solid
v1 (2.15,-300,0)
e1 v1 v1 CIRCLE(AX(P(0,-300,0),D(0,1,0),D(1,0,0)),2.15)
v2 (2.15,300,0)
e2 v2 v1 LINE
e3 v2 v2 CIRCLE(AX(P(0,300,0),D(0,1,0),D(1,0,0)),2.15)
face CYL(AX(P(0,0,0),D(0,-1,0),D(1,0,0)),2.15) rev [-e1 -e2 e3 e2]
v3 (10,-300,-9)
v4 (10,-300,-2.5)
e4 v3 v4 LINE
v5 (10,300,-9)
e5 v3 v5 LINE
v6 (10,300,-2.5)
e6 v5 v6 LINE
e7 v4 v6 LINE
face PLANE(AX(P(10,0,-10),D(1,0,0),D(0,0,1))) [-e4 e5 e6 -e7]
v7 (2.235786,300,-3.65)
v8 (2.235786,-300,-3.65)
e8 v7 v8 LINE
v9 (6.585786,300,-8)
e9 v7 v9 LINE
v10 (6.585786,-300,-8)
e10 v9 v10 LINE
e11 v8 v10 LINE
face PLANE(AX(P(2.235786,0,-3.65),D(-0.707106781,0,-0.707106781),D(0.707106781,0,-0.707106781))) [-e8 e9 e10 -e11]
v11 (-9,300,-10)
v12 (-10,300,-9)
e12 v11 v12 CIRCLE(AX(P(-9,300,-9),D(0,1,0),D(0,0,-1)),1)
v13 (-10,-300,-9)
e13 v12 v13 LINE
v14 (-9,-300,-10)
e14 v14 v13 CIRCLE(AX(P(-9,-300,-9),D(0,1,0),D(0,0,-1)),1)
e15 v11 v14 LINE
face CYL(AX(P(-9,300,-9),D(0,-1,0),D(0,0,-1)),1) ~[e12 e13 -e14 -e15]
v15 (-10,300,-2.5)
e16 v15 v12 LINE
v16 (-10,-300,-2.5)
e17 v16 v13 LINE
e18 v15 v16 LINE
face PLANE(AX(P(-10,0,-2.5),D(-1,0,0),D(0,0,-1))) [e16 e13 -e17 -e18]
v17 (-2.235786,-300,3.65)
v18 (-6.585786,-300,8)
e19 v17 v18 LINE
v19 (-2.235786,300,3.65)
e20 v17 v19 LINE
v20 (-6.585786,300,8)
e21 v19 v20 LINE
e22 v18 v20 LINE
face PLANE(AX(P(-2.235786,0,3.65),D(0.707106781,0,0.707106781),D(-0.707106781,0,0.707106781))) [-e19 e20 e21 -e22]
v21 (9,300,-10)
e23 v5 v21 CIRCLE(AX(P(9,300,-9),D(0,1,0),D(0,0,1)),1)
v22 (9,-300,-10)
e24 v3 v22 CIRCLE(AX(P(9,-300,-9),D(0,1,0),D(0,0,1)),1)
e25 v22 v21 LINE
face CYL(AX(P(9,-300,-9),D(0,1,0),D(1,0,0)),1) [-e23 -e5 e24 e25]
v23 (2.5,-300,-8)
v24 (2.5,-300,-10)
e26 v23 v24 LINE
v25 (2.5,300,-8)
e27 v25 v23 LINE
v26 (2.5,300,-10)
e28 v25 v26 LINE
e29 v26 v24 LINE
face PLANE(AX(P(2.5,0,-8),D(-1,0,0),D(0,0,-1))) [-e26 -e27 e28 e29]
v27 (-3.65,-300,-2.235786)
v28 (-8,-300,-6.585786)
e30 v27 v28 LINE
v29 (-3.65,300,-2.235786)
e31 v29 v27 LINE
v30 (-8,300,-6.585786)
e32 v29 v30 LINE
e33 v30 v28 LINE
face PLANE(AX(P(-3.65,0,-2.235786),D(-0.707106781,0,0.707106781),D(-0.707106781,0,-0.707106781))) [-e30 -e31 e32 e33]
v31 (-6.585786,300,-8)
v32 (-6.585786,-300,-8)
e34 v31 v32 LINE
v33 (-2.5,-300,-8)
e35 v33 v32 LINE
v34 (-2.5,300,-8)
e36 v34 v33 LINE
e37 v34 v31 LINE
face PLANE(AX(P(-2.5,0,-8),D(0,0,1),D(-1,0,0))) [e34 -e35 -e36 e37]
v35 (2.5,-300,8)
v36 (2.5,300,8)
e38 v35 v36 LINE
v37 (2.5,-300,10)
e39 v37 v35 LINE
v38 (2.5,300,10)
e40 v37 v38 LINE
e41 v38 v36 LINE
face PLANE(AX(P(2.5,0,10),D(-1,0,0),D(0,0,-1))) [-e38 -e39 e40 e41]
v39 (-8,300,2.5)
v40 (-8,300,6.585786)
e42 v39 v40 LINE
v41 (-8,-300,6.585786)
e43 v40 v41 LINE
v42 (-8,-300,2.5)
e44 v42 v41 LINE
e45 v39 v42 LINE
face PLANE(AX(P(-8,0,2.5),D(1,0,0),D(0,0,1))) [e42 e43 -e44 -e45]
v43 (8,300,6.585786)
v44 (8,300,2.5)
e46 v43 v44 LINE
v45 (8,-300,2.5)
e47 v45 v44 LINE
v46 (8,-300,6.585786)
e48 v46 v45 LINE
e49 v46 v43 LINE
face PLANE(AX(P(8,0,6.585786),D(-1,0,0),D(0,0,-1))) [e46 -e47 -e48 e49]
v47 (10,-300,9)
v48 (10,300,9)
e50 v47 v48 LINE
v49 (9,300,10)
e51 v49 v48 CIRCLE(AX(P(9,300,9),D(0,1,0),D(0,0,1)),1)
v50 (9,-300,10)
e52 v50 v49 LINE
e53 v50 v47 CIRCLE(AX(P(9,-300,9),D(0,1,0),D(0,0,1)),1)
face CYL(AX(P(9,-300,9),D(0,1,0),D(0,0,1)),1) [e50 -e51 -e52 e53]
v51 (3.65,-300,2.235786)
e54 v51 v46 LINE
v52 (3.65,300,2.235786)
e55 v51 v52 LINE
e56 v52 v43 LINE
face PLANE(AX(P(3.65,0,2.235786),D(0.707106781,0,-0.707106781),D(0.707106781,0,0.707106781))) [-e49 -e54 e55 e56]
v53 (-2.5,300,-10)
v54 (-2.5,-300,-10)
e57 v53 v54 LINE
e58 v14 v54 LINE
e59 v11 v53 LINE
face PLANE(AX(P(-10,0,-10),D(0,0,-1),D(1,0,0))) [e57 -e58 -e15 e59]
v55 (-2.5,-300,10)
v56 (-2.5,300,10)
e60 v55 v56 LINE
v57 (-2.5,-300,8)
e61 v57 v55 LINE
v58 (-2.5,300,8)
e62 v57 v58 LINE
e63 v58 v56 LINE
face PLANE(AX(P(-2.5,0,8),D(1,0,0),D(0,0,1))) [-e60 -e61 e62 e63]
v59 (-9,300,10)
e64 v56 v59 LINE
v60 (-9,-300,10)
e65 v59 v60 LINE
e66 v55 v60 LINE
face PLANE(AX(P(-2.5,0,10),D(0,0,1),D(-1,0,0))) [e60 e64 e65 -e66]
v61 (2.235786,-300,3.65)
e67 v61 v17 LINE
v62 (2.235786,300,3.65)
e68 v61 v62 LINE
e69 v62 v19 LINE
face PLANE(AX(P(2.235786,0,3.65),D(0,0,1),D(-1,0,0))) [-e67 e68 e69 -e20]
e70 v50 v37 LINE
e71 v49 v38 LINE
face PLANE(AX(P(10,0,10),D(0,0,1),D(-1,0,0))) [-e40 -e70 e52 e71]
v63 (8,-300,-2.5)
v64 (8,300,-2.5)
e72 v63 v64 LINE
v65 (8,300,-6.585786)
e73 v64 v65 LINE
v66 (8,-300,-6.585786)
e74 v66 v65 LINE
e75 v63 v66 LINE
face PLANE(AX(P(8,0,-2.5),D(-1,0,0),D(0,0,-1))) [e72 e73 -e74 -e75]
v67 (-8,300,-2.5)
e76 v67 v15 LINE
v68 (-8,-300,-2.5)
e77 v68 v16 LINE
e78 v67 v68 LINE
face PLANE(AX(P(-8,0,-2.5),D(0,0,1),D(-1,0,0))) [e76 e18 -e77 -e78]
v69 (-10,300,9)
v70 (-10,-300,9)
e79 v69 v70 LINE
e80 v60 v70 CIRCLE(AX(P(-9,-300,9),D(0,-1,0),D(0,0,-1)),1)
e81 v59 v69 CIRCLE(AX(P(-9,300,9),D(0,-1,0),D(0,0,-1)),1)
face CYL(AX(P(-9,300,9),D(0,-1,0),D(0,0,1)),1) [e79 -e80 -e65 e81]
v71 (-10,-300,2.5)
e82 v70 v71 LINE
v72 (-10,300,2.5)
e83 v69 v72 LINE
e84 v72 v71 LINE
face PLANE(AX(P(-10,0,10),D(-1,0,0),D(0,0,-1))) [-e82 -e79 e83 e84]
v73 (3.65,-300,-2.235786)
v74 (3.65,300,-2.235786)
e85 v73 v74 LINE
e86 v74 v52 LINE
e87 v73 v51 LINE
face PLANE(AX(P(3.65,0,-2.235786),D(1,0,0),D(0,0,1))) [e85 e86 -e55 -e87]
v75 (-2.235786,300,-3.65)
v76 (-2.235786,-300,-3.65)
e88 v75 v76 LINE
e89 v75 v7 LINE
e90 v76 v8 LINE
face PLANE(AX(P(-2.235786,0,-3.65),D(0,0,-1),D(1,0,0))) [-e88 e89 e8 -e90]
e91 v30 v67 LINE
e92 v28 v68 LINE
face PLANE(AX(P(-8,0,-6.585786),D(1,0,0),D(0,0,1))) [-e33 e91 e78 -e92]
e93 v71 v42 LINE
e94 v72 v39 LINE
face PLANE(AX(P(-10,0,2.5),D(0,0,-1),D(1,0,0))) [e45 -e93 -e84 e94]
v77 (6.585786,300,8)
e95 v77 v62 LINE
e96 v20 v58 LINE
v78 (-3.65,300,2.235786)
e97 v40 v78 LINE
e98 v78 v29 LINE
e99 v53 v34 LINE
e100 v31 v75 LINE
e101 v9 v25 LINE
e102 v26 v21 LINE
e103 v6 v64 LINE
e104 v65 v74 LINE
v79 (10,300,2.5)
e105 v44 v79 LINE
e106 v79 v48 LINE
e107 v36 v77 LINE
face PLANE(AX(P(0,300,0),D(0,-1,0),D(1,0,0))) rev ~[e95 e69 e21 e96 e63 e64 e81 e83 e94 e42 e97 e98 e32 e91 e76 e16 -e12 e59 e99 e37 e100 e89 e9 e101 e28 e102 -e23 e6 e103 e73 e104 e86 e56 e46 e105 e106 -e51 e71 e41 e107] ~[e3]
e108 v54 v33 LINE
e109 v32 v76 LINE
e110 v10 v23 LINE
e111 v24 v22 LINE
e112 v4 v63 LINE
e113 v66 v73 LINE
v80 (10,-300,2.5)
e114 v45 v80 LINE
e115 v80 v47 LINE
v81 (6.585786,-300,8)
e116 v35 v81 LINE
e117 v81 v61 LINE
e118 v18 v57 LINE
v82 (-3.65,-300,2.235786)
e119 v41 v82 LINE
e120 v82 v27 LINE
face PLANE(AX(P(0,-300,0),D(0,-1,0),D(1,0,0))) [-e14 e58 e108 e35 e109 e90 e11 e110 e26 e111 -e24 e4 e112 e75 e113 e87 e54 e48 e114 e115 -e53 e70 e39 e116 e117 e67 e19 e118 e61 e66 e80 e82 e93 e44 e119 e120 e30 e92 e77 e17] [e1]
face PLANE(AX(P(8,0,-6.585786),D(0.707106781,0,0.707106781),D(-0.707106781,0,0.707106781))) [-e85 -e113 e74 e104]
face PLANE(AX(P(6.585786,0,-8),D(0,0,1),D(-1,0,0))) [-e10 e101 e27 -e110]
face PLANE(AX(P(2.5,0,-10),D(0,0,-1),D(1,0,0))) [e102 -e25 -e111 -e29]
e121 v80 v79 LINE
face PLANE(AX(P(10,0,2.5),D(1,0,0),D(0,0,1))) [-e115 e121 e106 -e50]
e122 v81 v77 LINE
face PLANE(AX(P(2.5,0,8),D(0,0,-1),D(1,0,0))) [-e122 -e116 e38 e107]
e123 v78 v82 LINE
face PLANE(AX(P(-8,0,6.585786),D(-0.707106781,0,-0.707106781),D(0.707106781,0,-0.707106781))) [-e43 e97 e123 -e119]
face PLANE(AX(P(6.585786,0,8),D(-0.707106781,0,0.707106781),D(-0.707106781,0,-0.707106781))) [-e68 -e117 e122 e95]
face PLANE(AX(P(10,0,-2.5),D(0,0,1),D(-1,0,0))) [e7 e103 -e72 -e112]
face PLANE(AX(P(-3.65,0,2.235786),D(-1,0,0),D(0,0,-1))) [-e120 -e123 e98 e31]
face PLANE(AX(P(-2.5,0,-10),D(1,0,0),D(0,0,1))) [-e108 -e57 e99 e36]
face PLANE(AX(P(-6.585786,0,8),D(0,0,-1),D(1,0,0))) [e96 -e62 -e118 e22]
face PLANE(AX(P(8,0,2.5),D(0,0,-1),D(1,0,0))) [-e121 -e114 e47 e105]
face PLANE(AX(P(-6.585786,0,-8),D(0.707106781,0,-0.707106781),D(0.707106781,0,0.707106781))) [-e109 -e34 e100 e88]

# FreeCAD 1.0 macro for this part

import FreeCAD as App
import Part
import Sketcher
Q = App.Units.Quantity


def edges_at(feature, points):
    """Names of the edges that pass closest to the given points."""
    edges = feature.Shape.Edges
    near = lambda p: min(range(len(edges)), key=lambda i: edges[i].distToShape(Part.Vertex(*p))[0])
    return sorted({f"Edge{near(p) + 1}" for p in points})


def add_polygon(sketch, points):
    """Adds a closed chain of lines whose ends are joined by coincident constraints."""
    first, n = sketch.GeometryCount, len(points)
    for a, b in zip(points, points[1:] + points[:1]):
        sketch.addGeometry(Part.LineSegment(App.Vector(*a, 0), App.Vector(*b, 0)), False)
    for i in range(n):
        sketch.addConstraint(Sketcher.Constraint("Coincident", first + i, 2, first + (i + 1) % n, 1))

doc = App.newDocument("Part")
body = doc.addObject("PartDesign::Body", "Body")

# Sketch on XZ plane
sketch1 = body.newObject("Sketcher::SketchObject", "Sketch")
sketch1.AttachmentSupport = (doc.getObject("XZ_Plane"), [""])
sketch1.MapMode = "FlatFace"
add_polygon(sketch1, [(-2.5, 10), (-10, 10), (-10, 2.5), (-8, 2.5), (-8, 6.6), (-3.6, 2.2), (-3.6, -2.2), (-8, -6.6), (-8, -2.5), (-10, -2.5), (-10, -10), (-2.5, -10), (-2.5, -8), (-6.6, -8), (-2.2, -3.6), (2.2, -3.6), (6.6, -8), (2.5, -8), (2.5, -10), (10, -10), (10, -2.5), (8, -2.5), (8, -6.6), (3.6, -2.2), (3.6, 2.2), (8, 6.6), (8, 2.5), (10, 2.5), (10, 10), (2.5, 10), (2.5, 8), (6.6, 8), (2.2, 3.6), (-2.2, 3.6), (-6.6, 8), (-2.5, 8)])  # lines 0-35
sketch1.addGeometry(Part.Circle(App.Vector(0, 0, 0), App.Vector(0, 0, 1), 2.1), False)  # 36
sketch1.addConstraint([
    Sketcher.Constraint("Horizontal", 0),
    Sketcher.Constraint("Vertical", 1),
    Sketcher.Constraint("Horizontal", 2),
    Sketcher.Constraint("Vertical", 3),
    Sketcher.Constraint("Vertical", 5),
    Sketcher.Constraint("Vertical", 7),
    Sketcher.Constraint("Horizontal", 8),
    Sketcher.Constraint("Vertical", 9),
    Sketcher.Constraint("Horizontal", 10),
    Sketcher.Constraint("Vertical", 11),
    Sketcher.Constraint("Horizontal", 12),
    Sketcher.Constraint("Horizontal", 14),
    Sketcher.Constraint("Horizontal", 16),
    Sketcher.Constraint("Vertical", 17),
    Sketcher.Constraint("Horizontal", 18),
    Sketcher.Constraint("Vertical", 19),
    Sketcher.Constraint("Horizontal", 20),
    Sketcher.Constraint("Vertical", 21),
    Sketcher.Constraint("Vertical", 23),
    Sketcher.Constraint("Vertical", 25),
    Sketcher.Constraint("Horizontal", 26),
    Sketcher.Constraint("Vertical", 27),
    Sketcher.Constraint("Horizontal", 28),
    Sketcher.Constraint("Vertical", 29),
    Sketcher.Constraint("Horizontal", 30),
    Sketcher.Constraint("Horizontal", 32),
    Sketcher.Constraint("Horizontal", 34),
    Sketcher.Constraint("Vertical", 35),
    Sketcher.Constraint("Coincident", 36, 3, -1, 1),
    Sketcher.Constraint("Symmetric", 0, 2, 18, 2, -1, 1),
    Sketcher.Constraint("Symmetric", 2, 2, 20, 2, -1, 1),
    Sketcher.Constraint("Symmetric", 4, 2, 22, 2, -1, 1),
    Sketcher.Constraint("Symmetric", 6, 2, 24, 2, -1, 1),
    Sketcher.Constraint("Symmetric", 8, 2, 26, 2, -1, 1),
    Sketcher.Constraint("Symmetric", 10, 2, 28, 2, -1, 1),
    Sketcher.Constraint("Symmetric", 12, 2, 30, 2, -1, 1),
    Sketcher.Constraint("Symmetric", 13, 2, 31, 2, -1, 1),
    Sketcher.Constraint("Symmetric", 15, 2, 33, 2, -1, 1),
    Sketcher.Constraint("Symmetric", 12, 2, 15, 2, -2),
    Sketcher.Constraint("Symmetric", 10, 2, 17, 2, -2),
    Sketcher.Constraint("Symmetric", 8, 2, 19, 2, -2),
    Sketcher.Constraint("Symmetric", 6, 2, 21, 2, -2),
    Sketcher.Constraint("Perpendicular", 4, 6),
    Sketcher.Constraint("Parallel", 6, 13),
    Sketcher.Constraint("Perpendicular", 13, 15),
    Sketcher.Constraint("Parallel", 15, 22),
    Sketcher.Constraint("Perpendicular", 22, 24),
    Sketcher.Constraint("Perpendicular", 31, 33),
    Sketcher.Constraint("Horizontal", 5, 2, 22, 2),
    Sketcher.Constraint("Vertical", 11, 2, 34, 2),
    Sketcher.Constraint("Equal", 28, 1),
    Sketcher.Constraint("Equal", 34, 3),
    Sketcher.Constraint("Equal", 32, 5),
    Sketcher.Constraint("Equal", 26, 11),
    Sketcher.Constraint("Equal", 6, 13),
    Sketcher.Constraint("Diameter", 36, Q("4.3 mm")),
    Sketcher.Constraint("DistanceX", 2, 1, 2, 2, Q("2 mm")),
    Sketcher.Constraint("DistanceX", 0, 2, 0, 1, Q("7.5 mm")),
    Sketcher.Constraint("DistanceX", 0, 2, -1, 1, Q("10 mm")),
    Sketcher.Constraint("DistanceX", 4, 2, 23, 2, Q("7.3 mm")),
    Sketcher.Constraint("DistanceX", 12, 2, 12, 1, Q("4.085786 mm")),
])
pad1 = body.newObject("PartDesign::Pad", "Pad")
pad1.Profile = sketch1
pad1.Type = "TwoLengths"
pad1.Length = 300
pad1.Length2 = 300
doc.recompute()

fillet = body.newObject("PartDesign::Fillet", "Fillet")
fillet.Base = (pad1, edges_at(pad1, [
    (-10, 0, 10),
    (10, 0, 10),
    (-10, 0, -10),
    (10, 0, -10),
]))
fillet.Radius = 1

doc.recompute()
